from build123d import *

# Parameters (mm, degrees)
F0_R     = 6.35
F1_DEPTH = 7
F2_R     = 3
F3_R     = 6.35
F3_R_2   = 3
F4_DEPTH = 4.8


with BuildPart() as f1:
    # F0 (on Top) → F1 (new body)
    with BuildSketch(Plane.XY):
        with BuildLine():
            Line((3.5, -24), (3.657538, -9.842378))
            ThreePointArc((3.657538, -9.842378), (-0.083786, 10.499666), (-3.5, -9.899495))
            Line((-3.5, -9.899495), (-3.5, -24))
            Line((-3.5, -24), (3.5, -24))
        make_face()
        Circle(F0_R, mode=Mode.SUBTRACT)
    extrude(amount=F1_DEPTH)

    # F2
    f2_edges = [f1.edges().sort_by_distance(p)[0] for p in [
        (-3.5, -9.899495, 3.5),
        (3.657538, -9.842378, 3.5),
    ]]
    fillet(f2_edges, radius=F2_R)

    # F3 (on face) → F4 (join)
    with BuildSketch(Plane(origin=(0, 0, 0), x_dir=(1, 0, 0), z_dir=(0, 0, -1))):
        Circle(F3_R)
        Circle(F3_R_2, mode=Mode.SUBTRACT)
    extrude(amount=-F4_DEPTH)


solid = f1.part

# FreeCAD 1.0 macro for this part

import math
import FreeCAD as App
import Part
import Sketcher

V = App.Vector


def edges_at(feature, points):
    """Names of the edges that pass closest to the given points."""
    edges = feature.Shape.Edges
    near = lambda p: min(range(len(edges)), key=lambda i: edges[i].distToShape(Part.Vertex(*p))[0])
    return sorted({f"Edge{near(p) + 1}" for p in points})

doc = App.newDocument("Part")
body = doc.addObject("PartDesign::Body", "Body")

sketch1 = body.newObject("Sketcher::SketchObject", "Sketch")
sketch1.AttachmentSupport = (doc.getObject("XY_Plane"), [""])
sketch1.MapMode = "FlatFace"
sketch1.addGeometry([
    Part.LineSegment(V(3.5, -24, 0), V(3.657538, -9.842378, 0)),
    Part.ArcOfCircle(Part.Circle(V(-0.000001, 0, 0), V(0, 0, 1), 10.5), math.radians(-69.614366), math.radians(250.528784)),
    Part.LineSegment(V(-3.5, -9.899495, 0), V(-3.5, -24, 0)),
    Part.LineSegment(V(-3.5, -24, 0), V(3.5, -24, 0)),
    Part.Circle(V(0, 0, 0), V(0, 0, 1), 6.35),
], False)
sketch1.addConstraint([
    Sketcher.Constraint("Coincident", 0, 2, 1, 1),
    Sketcher.Constraint("Coincident", 1, 2, 2, 1),
    Sketcher.Constraint("Coincident", 2, 2, 3, 1),
    Sketcher.Constraint("Coincident", 3, 2, 0, 1),
    Sketcher.Constraint("Vertical", 2),
    Sketcher.Constraint("Horizontal", 3),
    Sketcher.Constraint("Coincident", 1, 3, -1, 1),
    Sketcher.Constraint("Coincident", 4, 3, -1, 1),
    Sketcher.Constraint("Diameter", 4, 12.7),
    Sketcher.Constraint("Radius", 1, 10.5),
    Sketcher.Constraint("DistanceX", 3, 1, 3, 2, 7.0),
    Sketcher.Constraint("DistanceY", 2, 2, -1, 1, 24.0),
    Sketcher.Constraint("DistanceX", 1, 2, -1, 1, 3.5),
    Sketcher.Constraint("Distance", 0, 14.158498),
])
pad1 = body.newObject("PartDesign::Pad", "Pad")
pad1.Profile = sketch1
pad1.Length = 7
doc.recompute()

fillet = body.newObject("PartDesign::Fillet", "Fillet")
fillet.Base = (pad1, edges_at(pad1, [(-3.5, -9.899, 3.5), (3.658, -9.842, 3.5)]))
fillet.Radius = 3

sketch2 = body.newObject("Sketcher::SketchObject", "Sketch001")
sketch2.AttachmentSupport = (doc.getObject("XY_Plane"), [""])
sketch2.MapMode = "FlatFace"
sketch2.addGeometry([
    Part.Circle(V(0, 0, 0), V(0, 0, 1), 6.35),
    Part.Circle(V(0, 0, 0), V(0, 0, 1), 3),
], False)
sketch2.addConstraint([
    Sketcher.Constraint("Coincident", 0, 3, -1, 1),
    Sketcher.Constraint("Coincident", 1, 3, -1, 1),
    Sketcher.Constraint("Diameter", 1, 6.0),
    Sketcher.Constraint("Diameter", 0, 12.7),
])
pad2 = body.newObject("PartDesign::Pad", "Pad001")
pad2.Profile = sketch2
pad2.Length = 4.8

doc.recompute()
